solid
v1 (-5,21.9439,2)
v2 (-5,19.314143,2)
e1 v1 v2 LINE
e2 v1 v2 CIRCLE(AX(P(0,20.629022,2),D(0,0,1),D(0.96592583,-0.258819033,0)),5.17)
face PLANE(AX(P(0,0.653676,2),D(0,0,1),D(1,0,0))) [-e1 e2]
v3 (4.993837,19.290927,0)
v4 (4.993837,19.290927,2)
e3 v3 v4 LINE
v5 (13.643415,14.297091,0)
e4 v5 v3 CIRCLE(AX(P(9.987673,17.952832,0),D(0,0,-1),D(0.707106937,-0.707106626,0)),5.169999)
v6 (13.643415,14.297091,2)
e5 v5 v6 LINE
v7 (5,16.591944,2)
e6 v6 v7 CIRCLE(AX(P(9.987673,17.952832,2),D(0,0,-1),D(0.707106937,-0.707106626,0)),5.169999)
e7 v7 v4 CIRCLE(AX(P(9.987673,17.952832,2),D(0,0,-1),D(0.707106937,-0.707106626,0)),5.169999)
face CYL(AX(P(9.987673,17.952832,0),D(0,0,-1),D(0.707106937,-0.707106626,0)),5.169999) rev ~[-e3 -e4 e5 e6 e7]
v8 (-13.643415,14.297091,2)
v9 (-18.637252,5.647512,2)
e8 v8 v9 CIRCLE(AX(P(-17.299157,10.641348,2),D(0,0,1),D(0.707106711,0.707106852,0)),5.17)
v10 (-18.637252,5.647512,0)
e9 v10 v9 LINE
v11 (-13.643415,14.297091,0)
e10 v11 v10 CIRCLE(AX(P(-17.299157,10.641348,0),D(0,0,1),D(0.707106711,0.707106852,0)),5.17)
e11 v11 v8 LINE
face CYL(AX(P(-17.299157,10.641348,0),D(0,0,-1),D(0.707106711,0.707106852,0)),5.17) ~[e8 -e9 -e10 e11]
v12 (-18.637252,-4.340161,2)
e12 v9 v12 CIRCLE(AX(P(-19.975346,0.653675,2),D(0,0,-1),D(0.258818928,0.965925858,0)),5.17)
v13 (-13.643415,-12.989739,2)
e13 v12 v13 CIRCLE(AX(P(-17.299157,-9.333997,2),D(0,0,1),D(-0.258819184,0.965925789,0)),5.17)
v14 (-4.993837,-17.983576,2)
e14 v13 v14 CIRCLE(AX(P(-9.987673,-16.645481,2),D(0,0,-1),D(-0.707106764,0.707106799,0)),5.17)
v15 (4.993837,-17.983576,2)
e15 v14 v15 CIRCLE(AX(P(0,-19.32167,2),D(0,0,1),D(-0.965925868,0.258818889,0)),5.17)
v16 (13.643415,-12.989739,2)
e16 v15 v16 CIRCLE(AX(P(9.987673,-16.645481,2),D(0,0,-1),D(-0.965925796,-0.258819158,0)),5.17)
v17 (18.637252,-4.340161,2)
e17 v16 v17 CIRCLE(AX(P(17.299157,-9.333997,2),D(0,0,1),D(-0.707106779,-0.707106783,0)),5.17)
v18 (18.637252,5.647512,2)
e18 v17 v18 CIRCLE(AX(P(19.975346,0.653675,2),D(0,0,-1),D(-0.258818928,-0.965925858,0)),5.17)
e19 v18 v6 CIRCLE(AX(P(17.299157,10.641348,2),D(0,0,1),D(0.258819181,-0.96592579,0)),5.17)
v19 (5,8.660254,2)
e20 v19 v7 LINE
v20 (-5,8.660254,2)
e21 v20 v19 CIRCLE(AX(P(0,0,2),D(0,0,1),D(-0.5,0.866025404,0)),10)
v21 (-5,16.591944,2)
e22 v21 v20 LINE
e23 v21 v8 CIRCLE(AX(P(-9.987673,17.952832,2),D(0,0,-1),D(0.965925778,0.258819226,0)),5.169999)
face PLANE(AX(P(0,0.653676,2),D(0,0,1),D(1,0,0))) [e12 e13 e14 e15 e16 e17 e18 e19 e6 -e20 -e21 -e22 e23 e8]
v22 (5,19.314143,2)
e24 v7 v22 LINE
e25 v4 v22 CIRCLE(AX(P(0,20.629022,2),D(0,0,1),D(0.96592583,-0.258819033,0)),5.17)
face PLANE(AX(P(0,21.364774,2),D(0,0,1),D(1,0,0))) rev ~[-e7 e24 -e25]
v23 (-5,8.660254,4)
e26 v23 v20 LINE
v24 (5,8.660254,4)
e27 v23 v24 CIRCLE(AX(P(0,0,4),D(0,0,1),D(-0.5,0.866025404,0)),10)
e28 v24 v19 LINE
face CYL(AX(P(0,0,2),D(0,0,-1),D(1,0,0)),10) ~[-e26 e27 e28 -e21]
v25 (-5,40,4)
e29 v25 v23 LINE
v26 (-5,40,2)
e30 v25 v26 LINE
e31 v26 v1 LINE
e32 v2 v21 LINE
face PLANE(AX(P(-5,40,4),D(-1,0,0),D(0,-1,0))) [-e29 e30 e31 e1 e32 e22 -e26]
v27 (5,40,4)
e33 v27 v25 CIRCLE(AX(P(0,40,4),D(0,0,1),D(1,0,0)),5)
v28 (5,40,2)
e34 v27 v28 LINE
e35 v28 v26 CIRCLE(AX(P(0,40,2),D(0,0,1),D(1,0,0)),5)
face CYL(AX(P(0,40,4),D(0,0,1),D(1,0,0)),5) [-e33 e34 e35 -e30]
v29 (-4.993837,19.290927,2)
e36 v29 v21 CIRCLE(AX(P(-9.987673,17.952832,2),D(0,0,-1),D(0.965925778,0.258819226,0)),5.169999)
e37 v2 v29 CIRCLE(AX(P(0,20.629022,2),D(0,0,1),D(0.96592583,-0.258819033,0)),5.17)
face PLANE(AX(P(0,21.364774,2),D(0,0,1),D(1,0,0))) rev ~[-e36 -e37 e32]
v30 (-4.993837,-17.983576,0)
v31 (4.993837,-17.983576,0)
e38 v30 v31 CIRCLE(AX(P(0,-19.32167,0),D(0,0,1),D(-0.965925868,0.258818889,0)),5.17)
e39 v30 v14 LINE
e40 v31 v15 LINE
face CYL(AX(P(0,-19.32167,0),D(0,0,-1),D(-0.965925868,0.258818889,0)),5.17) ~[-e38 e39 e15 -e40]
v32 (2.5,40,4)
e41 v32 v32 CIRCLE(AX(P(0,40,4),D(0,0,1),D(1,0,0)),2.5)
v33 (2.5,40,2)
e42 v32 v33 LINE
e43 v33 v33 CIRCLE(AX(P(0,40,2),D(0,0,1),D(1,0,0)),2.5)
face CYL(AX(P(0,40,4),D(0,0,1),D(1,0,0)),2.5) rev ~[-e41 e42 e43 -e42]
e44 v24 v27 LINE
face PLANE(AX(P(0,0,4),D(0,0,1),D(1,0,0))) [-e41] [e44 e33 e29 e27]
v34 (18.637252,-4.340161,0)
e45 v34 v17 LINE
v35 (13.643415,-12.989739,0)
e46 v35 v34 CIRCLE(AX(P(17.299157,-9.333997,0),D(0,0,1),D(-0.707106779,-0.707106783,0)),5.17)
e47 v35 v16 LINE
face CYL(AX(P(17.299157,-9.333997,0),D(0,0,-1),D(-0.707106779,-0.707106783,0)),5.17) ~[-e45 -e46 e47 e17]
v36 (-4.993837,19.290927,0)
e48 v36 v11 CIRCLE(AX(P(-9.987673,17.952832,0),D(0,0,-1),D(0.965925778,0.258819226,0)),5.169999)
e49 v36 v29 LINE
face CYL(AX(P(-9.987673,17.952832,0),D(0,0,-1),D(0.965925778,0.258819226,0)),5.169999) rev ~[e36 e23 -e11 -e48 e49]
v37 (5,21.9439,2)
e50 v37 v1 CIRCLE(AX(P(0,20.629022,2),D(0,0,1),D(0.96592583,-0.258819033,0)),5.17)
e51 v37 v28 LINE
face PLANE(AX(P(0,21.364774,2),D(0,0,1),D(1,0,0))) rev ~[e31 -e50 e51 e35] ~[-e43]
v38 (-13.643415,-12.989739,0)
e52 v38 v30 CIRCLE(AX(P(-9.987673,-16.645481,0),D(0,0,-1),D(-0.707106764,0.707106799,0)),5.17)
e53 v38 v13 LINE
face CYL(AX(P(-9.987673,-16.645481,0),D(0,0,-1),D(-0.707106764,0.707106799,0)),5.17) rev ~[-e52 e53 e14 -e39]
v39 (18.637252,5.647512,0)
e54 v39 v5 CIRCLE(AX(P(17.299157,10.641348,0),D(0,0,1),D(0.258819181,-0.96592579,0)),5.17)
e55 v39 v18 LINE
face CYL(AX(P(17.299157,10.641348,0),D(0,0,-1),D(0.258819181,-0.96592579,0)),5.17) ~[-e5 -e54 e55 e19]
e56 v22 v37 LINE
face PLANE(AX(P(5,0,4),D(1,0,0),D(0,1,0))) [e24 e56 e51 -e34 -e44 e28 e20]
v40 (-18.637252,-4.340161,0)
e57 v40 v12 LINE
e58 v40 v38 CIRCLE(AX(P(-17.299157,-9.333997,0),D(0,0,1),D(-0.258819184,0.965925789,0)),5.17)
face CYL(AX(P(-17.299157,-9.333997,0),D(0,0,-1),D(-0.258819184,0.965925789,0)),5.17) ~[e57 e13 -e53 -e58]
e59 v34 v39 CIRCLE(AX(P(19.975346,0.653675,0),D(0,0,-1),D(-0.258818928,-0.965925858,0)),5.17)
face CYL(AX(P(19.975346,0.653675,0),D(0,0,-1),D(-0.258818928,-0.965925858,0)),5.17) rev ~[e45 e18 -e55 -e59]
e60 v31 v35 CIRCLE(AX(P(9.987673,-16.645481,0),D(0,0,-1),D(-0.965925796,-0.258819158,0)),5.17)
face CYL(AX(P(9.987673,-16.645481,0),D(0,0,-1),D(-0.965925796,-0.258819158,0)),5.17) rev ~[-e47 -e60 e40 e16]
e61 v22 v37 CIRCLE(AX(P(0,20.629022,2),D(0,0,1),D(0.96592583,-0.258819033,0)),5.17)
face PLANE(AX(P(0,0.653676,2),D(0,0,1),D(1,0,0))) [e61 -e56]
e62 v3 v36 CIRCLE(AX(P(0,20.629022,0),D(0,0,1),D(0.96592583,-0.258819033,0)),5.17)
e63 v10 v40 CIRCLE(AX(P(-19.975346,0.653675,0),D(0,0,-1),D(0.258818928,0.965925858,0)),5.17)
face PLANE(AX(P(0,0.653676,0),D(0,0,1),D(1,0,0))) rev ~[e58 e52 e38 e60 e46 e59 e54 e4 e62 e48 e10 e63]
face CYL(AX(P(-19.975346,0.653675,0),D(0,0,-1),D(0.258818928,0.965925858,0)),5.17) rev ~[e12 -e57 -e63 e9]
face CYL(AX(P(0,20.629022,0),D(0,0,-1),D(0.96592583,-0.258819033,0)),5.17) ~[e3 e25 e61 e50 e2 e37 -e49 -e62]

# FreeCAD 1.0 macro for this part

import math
import FreeCAD as App
import Part
import Sketcher
from FreeCAD import Vector
Q = App.Units.Quantity

doc = App.newDocument("Part")
body = doc.addObject("PartDesign::Body", "Body")

# Sketch on XY plane
sketch1 = doc.addObject("Sketcher::SketchObject", "Sketch")
body.addObject(sketch1)
sketch1.AttachmentSupport = (doc.XY_Plane, [""])
sketch1.MapMode = "FlatFace"
sketch1.addGeometry([
    Part.ArcOfCircle(Part.Circle(Vector(-10, 18, 0), Vector(0, 0, 1), 5), math.radians(-135), math.radians(15)),  # 0
    Part.ArcOfCircle(Part.Circle(Vector(-17, 11, 0), Vector(0, 0, 1), 5), math.radians(45), math.radians(255)),  # 1
    Part.ArcOfCircle(Part.Circle(Vector(-20, 1, 0), Vector(0, 0, 1), 5), math.radians(-75), math.radians(75)),  # 2
    Part.ArcOfCircle(Part.Circle(Vector(-17, -9, 0), Vector(0, 0, 1), 5), math.radians(105), math.radians(315)),  # 3
    Part.ArcOfCircle(Part.Circle(Vector(-10, -17, 0), Vector(0, 0, 1), 5), math.radians(-15), math.radians(135)),  # 4
    Part.ArcOfCircle(Part.Circle(Vector(0, -19, 0), Vector(0, 0, 1), 5), math.radians(165), math.radians(375)),  # 5
    Part.ArcOfCircle(Part.Circle(Vector(10, -17, 0), Vector(0, 0, 1), 5), math.radians(45), math.radians(195)),  # 6
    Part.ArcOfCircle(Part.Circle(Vector(17, -9, 0), Vector(0, 0, 1), 5), math.radians(-135), math.radians(75)),  # 7
    Part.ArcOfCircle(Part.Circle(Vector(20, 1, 0), Vector(0, 0, 1), 5), math.radians(105), math.radians(255)),  # 8
    Part.ArcOfCircle(Part.Circle(Vector(17, 11, 0), Vector(0, 0, 1), 5), math.radians(-75), math.radians(135)),  # 9
    Part.ArcOfCircle(Part.Circle(Vector(10, 18, 0), Vector(0, 0, 1), 5), math.radians(165), math.radians(315)),  # 10
    Part.ArcOfCircle(Part.Circle(Vector(0, 21, 0), Vector(0, 0, 1), 5), math.radians(-15), math.radians(195)),  # 11
], False)
sketch1.addConstraint([
    Sketcher.Constraint("Tangent", 0, 1, 1, 1),
    Sketcher.Constraint("Tangent", 1, 2, 2, 2),
    Sketcher.Constraint("Tangent", 2, 1, 3, 1),
    Sketcher.Constraint("Tangent", 3, 2, 4, 2),
    Sketcher.Constraint("Tangent", 4, 1, 5, 1),
    Sketcher.Constraint("Tangent", 5, 2, 6, 2),
    Sketcher.Constraint("Tangent", 6, 1, 7, 1),
    Sketcher.Constraint("Tangent", 7, 2, 8, 2),
    Sketcher.Constraint("Tangent", 8, 1, 9, 1),
    Sketcher.Constraint("Tangent", 9, 2, 10, 2),
    Sketcher.Constraint("Tangent", 10, 1, 11, 1),
    Sketcher.Constraint("Tangent", 11, 2, 0, 2),
    Sketcher.Constraint("Equal", 0, 1),
    Sketcher.Constraint("Equal", 1, 2),
    Sketcher.Constraint("Equal", 2, 3),
    Sketcher.Constraint("Equal", 3, 4),
    Sketcher.Constraint("Equal", 4, 5),
    Sketcher.Constraint("Equal", 5, 6),
    Sketcher.Constraint("Equal", 6, 7),
    Sketcher.Constraint("Equal", 7, 8),
    Sketcher.Constraint("Equal", 8, 9),
    Sketcher.Constraint("Equal", 9, 10),
    Sketcher.Constraint("Equal", 10, 11),
    Sketcher.Constraint("Symmetric", 4, 3, 6, 3, -2),
    Sketcher.Constraint("Symmetric", 2, 3, 8, 3, -2),
    Sketcher.Constraint("Symmetric", 0, 3, 10, 3, -2),
    Sketcher.Constraint("Vertical", 1, 3, 3, 3),
    Sketcher.Constraint("Vertical", 0, 3, 4, 3),
    Sketcher.Constraint("Radius", 0, Q("5.169999 mm")),
    Sketcher.Constraint("DistanceY", 5, 3, 0, 3, Q("37.274502 mm")),
    Sketcher.Constraint("DistanceY", -1, 1, 0, 3, Q("17.952832 mm")),
    Sketcher.Constraint("DistanceY", -1, 1, 1, 3, Q("10.641348 mm")),
    Sketcher.Constraint("DistanceY", 4, 3, -1, 1, Q("16.645481 mm")),
])
pad1 = doc.addObject("PartDesign::Pad", "Pad")
body.addObject(pad1)
pad1.Profile = sketch1
pad1.Length = 2

# Sketch on XY plane
sketch2 = doc.addObject("Sketcher::SketchObject", "Sketch001")
body.addObject(sketch2)
sketch2.AttachmentSupport = (doc.XY_Plane, [""])
sketch2.MapMode = "FlatFace"
sketch2.AttachmentOffset = App.Placement(Vector(0, 0, 2), App.Rotation())
sketch2.addGeometry(Part.Circle(Vector(0, 0, 0), Vector(0, 0, 1), 10), False)
sketch2.addConstraint([
    Sketcher.Constraint("Coincident", 0, 3, -1, 1),
    Sketcher.Constraint("Diameter", 0, Q("20 mm")),
])
pad2 = doc.addObject("PartDesign::Pad", "Pad001")
body.addObject(pad2)
pad2.Profile = sketch2
pad2.Length = 2

# Sketch on XY plane
sketch3 = doc.addObject("Sketcher::SketchObject", "Sketch002")
body.addObject(sketch3)
sketch3.AttachmentSupport = (doc.XY_Plane, [""])
sketch3.MapMode = "FlatFace"
sketch3.AttachmentOffset = App.Placement(Vector(0, 0, 4), App.Rotation())
sketch3.addGeometry([
    Part.LineSegment(Vector(-5, 0, 0), Vector(5, 0, 0)),  # 0
    Part.LineSegment(Vector(5, 0, 0), Vector(5, 40, 0)),  # 1
    Part.ArcOfCircle(Part.Circle(Vector(0, 40, 0), Vector(0, 0, 1), 5), math.radians(0), math.radians(180)),  # 2
    Part.LineSegment(Vector(-5, 40, 0), Vector(-5, 0, 0)),  # 3
    Part.Circle(Vector(0, 40, 0), Vector(0, 0, 1), 2.5),  # 4
], False)
sketch3.addConstraint([
    Sketcher.Constraint("Coincident", 0, 2, 1, 1),
    Sketcher.Constraint("Tangent", 1, 2, 2, 1),
    Sketcher.Constraint("Tangent", 2, 2, 3, 1),
    Sketcher.Constraint("Coincident", 3, 2, 0, 1),
    Sketcher.Constraint("Horizontal", 0),
    Sketcher.Constraint("Vertical", 1),
    Sketcher.Constraint("Vertical", 3),
    Sketcher.Constraint("Coincident", 4, 3, 2, 3),
    Sketcher.Constraint("Symmetric", 0, 2, 3, 2, -1, 1),
    Sketcher.Constraint("Diameter", 4, Q("5 mm")),
    Sketcher.Constraint("Radius", 2, Q("5 mm")),
    Sketcher.Constraint("DistanceY", 1, 1, 1, 2, Q("40 mm")),
])
pad3 = doc.addObject("PartDesign::Pad", "Pad002")
body.addObject(pad3)
pad3.Profile = sketch3
pad3.Length = 2
pad3.Reversed = True

doc.recompute()
